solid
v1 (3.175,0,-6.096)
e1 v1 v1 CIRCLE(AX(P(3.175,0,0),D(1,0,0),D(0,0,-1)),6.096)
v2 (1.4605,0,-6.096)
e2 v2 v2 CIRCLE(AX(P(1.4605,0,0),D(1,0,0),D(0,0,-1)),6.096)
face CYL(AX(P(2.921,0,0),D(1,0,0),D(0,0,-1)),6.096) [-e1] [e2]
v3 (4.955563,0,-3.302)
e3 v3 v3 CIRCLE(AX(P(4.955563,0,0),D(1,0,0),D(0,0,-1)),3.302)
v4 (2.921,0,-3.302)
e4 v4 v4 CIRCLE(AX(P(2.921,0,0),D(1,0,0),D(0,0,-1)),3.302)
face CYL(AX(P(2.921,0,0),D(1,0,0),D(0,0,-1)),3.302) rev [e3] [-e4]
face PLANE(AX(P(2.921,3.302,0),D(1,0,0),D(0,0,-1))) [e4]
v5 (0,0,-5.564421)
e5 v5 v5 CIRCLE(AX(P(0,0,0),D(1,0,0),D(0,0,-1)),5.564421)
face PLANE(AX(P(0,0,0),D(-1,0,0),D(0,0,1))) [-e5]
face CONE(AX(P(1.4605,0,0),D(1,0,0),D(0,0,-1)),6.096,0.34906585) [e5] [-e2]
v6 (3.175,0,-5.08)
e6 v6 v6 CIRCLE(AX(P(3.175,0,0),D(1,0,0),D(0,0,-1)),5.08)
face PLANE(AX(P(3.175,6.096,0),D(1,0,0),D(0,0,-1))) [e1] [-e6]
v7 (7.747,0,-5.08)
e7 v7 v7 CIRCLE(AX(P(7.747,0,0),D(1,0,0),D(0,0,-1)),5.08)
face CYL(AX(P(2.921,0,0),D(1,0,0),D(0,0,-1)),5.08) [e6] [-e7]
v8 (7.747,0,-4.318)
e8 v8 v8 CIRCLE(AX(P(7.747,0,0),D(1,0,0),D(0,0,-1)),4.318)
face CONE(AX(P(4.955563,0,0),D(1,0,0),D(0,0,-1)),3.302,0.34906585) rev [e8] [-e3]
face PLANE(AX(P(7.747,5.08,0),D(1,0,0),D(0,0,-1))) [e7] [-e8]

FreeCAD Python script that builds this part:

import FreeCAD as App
import Part
import Sketcher

V = App.Vector
Q = App.Units.Quantity

doc = App.newDocument("Part")
body = doc.addObject("PartDesign::Body", "Body")

# Sketch on XY plane
sketch1 = body.newObject("Sketcher::SketchObject", "Sketch")
sketch1.AttachmentSupport = (doc.getObject("XY_Plane"), [""])
sketch1.MapMode = "FlatFace"
sketch1.addGeometry([
    Part.LineSegment(V(0, 5.564421, 0), V(0, 0, 0)),  # 0
    Part.LineSegment(V(0, 0, 0), V(2.921, 0, 0)),  # 1
    Part.LineSegment(V(2.921, 0, 0), V(2.921, 3.302, 0)),  # 2
    Part.LineSegment(V(2.921, 3.302, 0), V(4.955563, 3.302, 0)),  # 3
    Part.LineSegment(V(4.955563, 3.302, 0), V(7.747, 4.318, 0)),  # 4
    Part.LineSegment(V(7.747, 4.318, 0), V(7.747, 5.08, 0)),  # 5
    Part.LineSegment(V(7.747, 5.08, 0), V(3.175, 5.08, 0)),  # 6
    Part.LineSegment(V(3.175, 5.08, 0), V(3.175, 6.096, 0)),  # 7
    Part.LineSegment(V(3.175, 6.096, 0), V(1.4605, 6.096, 0)),  # 8
    Part.LineSegment(V(1.4605, 6.096, 0), V(0, 5.564421, 0)),  # 9
], False)
sketch1.addConstraint([
    Sketcher.Constraint("Coincident", 0, 2, 1, 1),
    Sketcher.Constraint("Coincident", 1, 2, 2, 1),
    Sketcher.Constraint("Coincident", 2, 2, 3, 1),
    Sketcher.Constraint("Coincident", 3, 2, 4, 1),
    Sketcher.Constraint("Coincident", 4, 2, 5, 1),
    Sketcher.Constraint("Coincident", 5, 2, 6, 1),
    Sketcher.Constraint("Coincident", 6, 2, 7, 1),
    Sketcher.Constraint("Coincident", 7, 2, 8, 1),
    Sketcher.Constraint("Coincident", 8, 2, 9, 1),
    Sketcher.Constraint("Coincident", 9, 2, 0, 1),
    Sketcher.Constraint("Vertical", 0),
    Sketcher.Constraint("Horizontal", 1),
    Sketcher.Constraint("Vertical", 2),
    Sketcher.Constraint("Horizontal", 3),
    Sketcher.Constraint("Vertical", 5),
    Sketcher.Constraint("Horizontal", 6),
    Sketcher.Constraint("Vertical", 7),
    Sketcher.Constraint("Horizontal", 8),
    Sketcher.Constraint("Coincident", 0, 2, -1, 1),
    Sketcher.Constraint("Parallel", 4, 9),
    Sketcher.Constraint("Angle", 4, Q("20 deg")),
    Sketcher.Constraint("DistanceX", 6, 2, 6, 1, Q("0.18 in")),
    Sketcher.Constraint("DistanceY", 2, 1, 2, 2, Q("0.13 in")),
    Sketcher.Constraint("DistanceY", 5, 1, 5, 2, Q("0.03 in")),
    Sketcher.Constraint("DistanceY", 7, 1, 7, 2, Q("0.04 in")),
    Sketcher.Constraint("DistanceY", -1, 1, 5, 2, Q("0.2 in")),
    Sketcher.Constraint("DistanceX", 1, 1, 1, 2, Q("0.115 in")),
    Sketcher.Constraint("DistanceX", 2, 2, 4, 2, Q("0.19 in")),
    Sketcher.Constraint("DistanceX", 8, 2, 8, 1, Q("0.0675 in")),
])
revolution = body.newObject("PartDesign::Revolution", "Revolution")
revolution.Profile = sketch1
revolution.ReferenceAxis = (sketch1, ["H_Axis"])
revolution.Angle = 360

doc.recompute()
